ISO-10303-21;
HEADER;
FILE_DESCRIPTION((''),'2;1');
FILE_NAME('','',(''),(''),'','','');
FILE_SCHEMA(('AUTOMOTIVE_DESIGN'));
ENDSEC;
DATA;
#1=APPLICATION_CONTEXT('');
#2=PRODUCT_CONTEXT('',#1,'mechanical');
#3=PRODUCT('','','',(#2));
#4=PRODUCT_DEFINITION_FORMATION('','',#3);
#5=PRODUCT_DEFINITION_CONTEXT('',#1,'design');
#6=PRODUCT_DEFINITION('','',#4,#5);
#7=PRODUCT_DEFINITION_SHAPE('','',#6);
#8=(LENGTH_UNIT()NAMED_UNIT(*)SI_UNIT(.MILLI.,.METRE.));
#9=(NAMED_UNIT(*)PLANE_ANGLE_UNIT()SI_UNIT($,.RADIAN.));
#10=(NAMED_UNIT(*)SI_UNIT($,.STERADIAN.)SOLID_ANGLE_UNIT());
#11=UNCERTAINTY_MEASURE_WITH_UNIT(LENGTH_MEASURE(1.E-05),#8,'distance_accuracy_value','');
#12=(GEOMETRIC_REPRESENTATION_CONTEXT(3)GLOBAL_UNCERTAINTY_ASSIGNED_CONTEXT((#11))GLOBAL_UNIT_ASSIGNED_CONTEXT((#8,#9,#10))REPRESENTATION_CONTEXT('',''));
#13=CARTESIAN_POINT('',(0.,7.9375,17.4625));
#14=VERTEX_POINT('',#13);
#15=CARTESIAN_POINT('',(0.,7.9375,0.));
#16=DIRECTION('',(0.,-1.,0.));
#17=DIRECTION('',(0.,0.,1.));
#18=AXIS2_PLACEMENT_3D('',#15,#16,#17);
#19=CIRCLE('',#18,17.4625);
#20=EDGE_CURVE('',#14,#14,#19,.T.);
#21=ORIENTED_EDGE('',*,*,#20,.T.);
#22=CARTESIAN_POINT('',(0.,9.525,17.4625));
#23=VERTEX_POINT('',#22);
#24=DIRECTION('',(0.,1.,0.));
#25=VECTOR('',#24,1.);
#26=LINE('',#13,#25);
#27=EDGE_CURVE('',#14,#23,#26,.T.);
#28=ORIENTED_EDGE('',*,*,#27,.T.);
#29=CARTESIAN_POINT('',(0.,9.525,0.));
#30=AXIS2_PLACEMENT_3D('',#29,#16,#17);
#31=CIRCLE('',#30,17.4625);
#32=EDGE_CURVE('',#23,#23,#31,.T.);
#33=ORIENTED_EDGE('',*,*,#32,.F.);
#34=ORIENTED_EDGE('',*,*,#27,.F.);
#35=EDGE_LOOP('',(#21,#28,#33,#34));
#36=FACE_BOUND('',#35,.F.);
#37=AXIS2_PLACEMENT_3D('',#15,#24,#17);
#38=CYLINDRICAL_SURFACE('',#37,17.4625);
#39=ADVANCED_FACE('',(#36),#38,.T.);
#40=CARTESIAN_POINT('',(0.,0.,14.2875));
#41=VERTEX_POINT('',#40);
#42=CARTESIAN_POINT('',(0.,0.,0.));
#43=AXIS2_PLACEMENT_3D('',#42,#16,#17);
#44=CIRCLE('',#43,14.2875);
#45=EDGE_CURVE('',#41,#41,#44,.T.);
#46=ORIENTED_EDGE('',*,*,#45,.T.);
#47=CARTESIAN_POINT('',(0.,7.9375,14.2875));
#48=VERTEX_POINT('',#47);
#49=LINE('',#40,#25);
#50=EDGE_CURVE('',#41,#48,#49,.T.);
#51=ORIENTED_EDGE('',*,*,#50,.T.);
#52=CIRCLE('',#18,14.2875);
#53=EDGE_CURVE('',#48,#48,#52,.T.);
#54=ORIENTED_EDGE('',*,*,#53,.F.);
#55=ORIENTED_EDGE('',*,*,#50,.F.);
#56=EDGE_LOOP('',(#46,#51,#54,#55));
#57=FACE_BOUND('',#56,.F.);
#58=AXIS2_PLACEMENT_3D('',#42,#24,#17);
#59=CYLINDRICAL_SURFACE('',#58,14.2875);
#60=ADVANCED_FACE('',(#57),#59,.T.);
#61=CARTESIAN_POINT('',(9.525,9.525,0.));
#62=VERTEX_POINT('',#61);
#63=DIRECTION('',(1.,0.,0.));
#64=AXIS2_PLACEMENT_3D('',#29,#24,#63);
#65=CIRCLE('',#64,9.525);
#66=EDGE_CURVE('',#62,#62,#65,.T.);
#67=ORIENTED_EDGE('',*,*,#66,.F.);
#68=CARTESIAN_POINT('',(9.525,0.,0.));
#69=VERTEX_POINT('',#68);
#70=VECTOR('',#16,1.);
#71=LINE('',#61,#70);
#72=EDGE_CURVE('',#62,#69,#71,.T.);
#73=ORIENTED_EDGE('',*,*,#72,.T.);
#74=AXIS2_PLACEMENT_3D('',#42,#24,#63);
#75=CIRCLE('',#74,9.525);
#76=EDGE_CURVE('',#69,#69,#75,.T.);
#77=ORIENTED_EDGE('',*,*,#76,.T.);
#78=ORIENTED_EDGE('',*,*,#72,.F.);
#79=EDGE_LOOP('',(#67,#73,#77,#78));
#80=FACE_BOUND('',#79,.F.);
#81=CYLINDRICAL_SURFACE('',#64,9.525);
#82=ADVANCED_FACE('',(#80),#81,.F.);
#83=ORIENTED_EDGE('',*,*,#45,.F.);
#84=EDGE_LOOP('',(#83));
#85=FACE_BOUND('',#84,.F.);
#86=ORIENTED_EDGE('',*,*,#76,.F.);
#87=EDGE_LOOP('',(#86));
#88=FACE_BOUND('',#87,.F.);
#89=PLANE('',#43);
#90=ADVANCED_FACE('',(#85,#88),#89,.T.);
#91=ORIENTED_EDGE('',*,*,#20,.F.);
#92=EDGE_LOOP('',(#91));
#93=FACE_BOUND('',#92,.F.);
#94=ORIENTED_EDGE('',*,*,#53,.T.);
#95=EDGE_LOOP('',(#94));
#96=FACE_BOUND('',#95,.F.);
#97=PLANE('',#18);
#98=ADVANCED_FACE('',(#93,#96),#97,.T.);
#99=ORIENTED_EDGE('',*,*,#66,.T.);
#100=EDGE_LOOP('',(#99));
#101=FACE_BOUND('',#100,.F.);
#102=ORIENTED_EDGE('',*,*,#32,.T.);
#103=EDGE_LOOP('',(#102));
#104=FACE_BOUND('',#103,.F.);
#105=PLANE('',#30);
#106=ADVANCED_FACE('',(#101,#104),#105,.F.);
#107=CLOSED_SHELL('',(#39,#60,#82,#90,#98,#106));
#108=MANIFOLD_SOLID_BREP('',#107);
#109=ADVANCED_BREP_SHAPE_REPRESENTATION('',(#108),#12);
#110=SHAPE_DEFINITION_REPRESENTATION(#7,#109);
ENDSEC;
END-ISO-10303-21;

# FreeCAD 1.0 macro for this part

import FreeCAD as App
import Part
import Sketcher
from FreeCAD import Vector
Q = App.Units.Quantity

doc = App.newDocument("Part")
body = doc.addObject("PartDesign::Body", "Body")

# Sketch on YZ plane
sketch1 = doc.addObject("Sketcher::SketchObject", "Sketch")
body.addObject(sketch1)
sketch1.AttachmentSupport = (doc.YZ_Plane, [""])
sketch1.MapMode = "FlatFace"
sketch1.addGeometry([
    Part.LineSegment(Vector(0, 0, 0), Vector(9.5, 0, 0)),  # 0
    Part.LineSegment(Vector(9.5, 0, 0), Vector(9.5, 17.5, 0)),  # 1
    Part.LineSegment(Vector(9.5, 17.5, 0), Vector(7.9, 17.5, 0)),  # 2
    Part.LineSegment(Vector(7.9, 17.5, 0), Vector(7.9, 14.3, 0)),  # 3
    Part.LineSegment(Vector(7.9, 14.3, 0), Vector(0, 14.3, 0)),  # 4
    Part.LineSegment(Vector(0, 14.3, 0), Vector(0, 0, 0)),  # 5
], False)
sketch1.addConstraint([
    Sketcher.Constraint("Coincident", 0, 2, 1, 1),
    Sketcher.Constraint("Coincident", 1, 2, 2, 1),
    Sketcher.Constraint("Coincident", 2, 2, 3, 1),
    Sketcher.Constraint("Coincident", 3, 2, 4, 1),
    Sketcher.Constraint("Coincident", 4, 2, 5, 1),
    Sketcher.Constraint("Coincident", 5, 2, 0, 1),
    Sketcher.Constraint("Horizontal", 0),
    Sketcher.Constraint("Vertical", 1),
    Sketcher.Constraint("Horizontal", 2),
    Sketcher.Constraint("Vertical", 3),
    Sketcher.Constraint("Horizontal", 4),
    Sketcher.Constraint("Vertical", 5),
    Sketcher.Constraint("Coincident", 5, 2, -1, 1),
    Sketcher.Constraint("DistanceX", 0, 1, 0, 2, Q("0.375 in")),
    Sketcher.Constraint("DistanceX", 2, 2, 2, 1, Q("0.0625 in")),
    Sketcher.Constraint("DistanceY", 3, 2, 3, 1, Q("0.125 in")),
    Sketcher.Constraint("DistanceY", 1, 1, 1, 2, Q("0.6875 in")),
])
revolution = doc.addObject("PartDesign::Revolution", "Revolution")
body.addObject(revolution)
revolution.Profile = sketch1
revolution.ReferenceAxis = (sketch1, ["H_Axis"])
revolution.Angle = 360

# Sketch on XZ plane
sketch2 = doc.addObject("Sketcher::SketchObject", "Sketch001")
body.addObject(sketch2)
sketch2.AttachmentSupport = (doc.XZ_Plane, [""])
sketch2.MapMode = "FlatFace"
sketch2.AttachmentOffset = App.Placement(Vector(0, 0, -0.375 * 25.4), App.Rotation())
sketch2.addGeometry(Part.Circle(Vector(0, 0, 0), Vector(0, 0, 1), 10), False)
sketch2.addConstraint([
    Sketcher.Constraint("Coincident", 0, 3, -1, 1),
    Sketcher.Constraint("Diameter", 0, Q("0.75 in")),
])
pocket1 = doc.addObject("PartDesign::Pocket", "Pocket")
body.addObject(pocket1)
pocket1.Profile = sketch2
pocket1.Length = Q("1 in")
pocket1.Reversed = True

doc.recompute()
